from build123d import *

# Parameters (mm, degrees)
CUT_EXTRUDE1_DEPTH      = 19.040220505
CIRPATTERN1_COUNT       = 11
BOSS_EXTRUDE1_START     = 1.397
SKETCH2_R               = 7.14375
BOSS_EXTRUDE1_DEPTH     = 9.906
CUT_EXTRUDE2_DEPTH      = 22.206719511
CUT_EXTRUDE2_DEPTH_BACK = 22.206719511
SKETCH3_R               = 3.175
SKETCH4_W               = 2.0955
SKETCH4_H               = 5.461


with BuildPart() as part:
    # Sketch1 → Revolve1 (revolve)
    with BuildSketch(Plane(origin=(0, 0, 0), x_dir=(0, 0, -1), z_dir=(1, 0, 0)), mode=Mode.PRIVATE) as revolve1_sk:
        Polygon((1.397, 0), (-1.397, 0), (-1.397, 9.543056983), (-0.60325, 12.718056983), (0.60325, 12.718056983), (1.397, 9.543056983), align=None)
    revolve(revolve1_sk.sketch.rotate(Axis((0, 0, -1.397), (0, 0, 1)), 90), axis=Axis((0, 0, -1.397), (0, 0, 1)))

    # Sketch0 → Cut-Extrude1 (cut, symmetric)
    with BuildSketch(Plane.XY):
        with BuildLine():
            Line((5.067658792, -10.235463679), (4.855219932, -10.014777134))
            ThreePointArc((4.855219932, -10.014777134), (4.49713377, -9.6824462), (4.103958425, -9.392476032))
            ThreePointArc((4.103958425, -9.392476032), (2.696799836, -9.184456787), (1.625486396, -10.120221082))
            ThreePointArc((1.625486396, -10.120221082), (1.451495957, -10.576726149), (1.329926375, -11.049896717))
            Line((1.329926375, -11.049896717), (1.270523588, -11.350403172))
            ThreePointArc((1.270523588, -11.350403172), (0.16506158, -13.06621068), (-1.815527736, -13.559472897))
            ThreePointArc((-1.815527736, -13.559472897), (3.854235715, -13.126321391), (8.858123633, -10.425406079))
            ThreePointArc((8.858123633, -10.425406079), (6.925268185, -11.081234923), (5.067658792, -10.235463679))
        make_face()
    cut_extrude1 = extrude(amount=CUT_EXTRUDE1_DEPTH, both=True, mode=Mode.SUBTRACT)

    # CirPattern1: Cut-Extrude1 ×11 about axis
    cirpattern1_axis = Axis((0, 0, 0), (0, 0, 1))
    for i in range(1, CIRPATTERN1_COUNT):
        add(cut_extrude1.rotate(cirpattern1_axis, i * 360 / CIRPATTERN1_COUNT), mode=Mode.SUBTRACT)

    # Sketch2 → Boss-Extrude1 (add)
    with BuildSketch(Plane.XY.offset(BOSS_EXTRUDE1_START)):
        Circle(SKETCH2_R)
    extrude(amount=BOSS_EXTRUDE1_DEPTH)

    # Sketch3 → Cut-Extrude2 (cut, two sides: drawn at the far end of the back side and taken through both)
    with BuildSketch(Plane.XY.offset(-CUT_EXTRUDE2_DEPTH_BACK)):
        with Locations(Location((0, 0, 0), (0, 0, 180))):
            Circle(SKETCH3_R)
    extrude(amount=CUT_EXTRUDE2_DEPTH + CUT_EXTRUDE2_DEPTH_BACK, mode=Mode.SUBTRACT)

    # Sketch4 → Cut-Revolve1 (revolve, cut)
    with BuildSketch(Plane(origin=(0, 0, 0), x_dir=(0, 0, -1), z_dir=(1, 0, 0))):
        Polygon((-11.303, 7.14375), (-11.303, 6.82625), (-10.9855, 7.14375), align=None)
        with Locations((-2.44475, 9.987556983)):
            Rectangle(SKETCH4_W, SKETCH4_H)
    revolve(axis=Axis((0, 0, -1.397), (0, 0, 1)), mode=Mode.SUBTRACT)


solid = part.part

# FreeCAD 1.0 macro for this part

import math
import FreeCAD as App
import Part
import Sketcher
Q = App.Units.Quantity

doc = App.newDocument("Part")
body = doc.addObject("PartDesign::Body", "Body")

sketch1 = body.newObject("Sketcher::SketchObject", "Sketch")
sketch1.AttachmentSupport = (doc.getObject("YZ_Plane"), [""])
sketch1.MapMode = "FlatFace"
sketch1.addGeometry([
    Part.LineSegment(App.Vector(0, 1.4, 0), App.Vector(0, -1.4, 0)),
    Part.LineSegment(App.Vector(0, -1.4, 0), App.Vector(9.5, -1.4, 0)),
    Part.LineSegment(App.Vector(9.5, -1.4, 0), App.Vector(12.7, -0.6, 0)),
    Part.LineSegment(App.Vector(12.7, -0.6, 0), App.Vector(12.7, 0.6, 0)),
    Part.LineSegment(App.Vector(12.7, 0.6, 0), App.Vector(9.5, 1.4, 0)),
    Part.LineSegment(App.Vector(9.5, 1.4, 0), App.Vector(0, 1.4, 0)),
], False)
sketch1.addConstraint([
    Sketcher.Constraint("Coincident", 0, 2, 1, 1),
    Sketcher.Constraint("Coincident", 1, 2, 2, 1),
    Sketcher.Constraint("Coincident", 2, 2, 3, 1),
    Sketcher.Constraint("Coincident", 3, 2, 4, 1),
    Sketcher.Constraint("Coincident", 4, 2, 5, 1),
    Sketcher.Constraint("Coincident", 5, 2, 0, 1),
    Sketcher.Constraint("Vertical", 0),
    Sketcher.Constraint("Horizontal", 1),
    Sketcher.Constraint("Vertical", 3),
    Sketcher.Constraint("Horizontal", 5),
    Sketcher.Constraint("Symmetric", 0, 2, 5, 2, -1, 1),
    Sketcher.Constraint("Vertical", 1, 2, 4, 2),
    Sketcher.Constraint("Equal", 2, 4),
    Sketcher.Constraint("DistanceY", 0, 2, 0, 1, Q("0.11 in")),
    Sketcher.Constraint("DistanceY", 3, 1, 3, 2, Q("0.0475 in")),
    Sketcher.Constraint("DistanceX", 1, 2, 2, 2, Q("0.125 in")),
    Sketcher.Constraint("DistanceX", 1, 1, 1, 2, Q("9.543057 mm")),
])
revolution = body.newObject("PartDesign::Revolution", "Revolution")
revolution.Profile = sketch1
revolution.ReferenceAxis = (sketch1, ["V_Axis"])
revolution.Angle = 360

sketch2 = body.newObject("Sketcher::SketchObject", "Sketch001")
sketch2.AttachmentSupport = (doc.getObject("XY_Plane"), [""])
sketch2.MapMode = "FlatFace"
sketch2.addGeometry([
    Part.LineSegment(App.Vector(5.07, -10.24, 0), App.Vector(4.86, -10.01, 0)),
    Part.ArcOfCircle(Part.Circle(App.Vector(1.73, -13.02, 0), App.Vector(0, 0, 1), 4.34), math.radians(43.91), math.radians(56.82)),
    Part.ArcOfCircle(Part.Circle(App.Vector(3.17, -10.81, 0), App.Vector(0, 0, 1), 1.7), math.radians(57), math.radians(156)),
    Part.ArcOfCircle(Part.Circle(App.Vector(5.59, -11.89, 0), App.Vector(0, 0, 1), 4.34), math.radians(155.91), math.radians(168.82)),
    Part.LineSegment(App.Vector(1.33, -11.05, 0), App.Vector(1.27, -11.35, 0)),
    Part.ArcOfCircle(Part.Circle(App.Vector(-1.45, -10.81, 0), App.Vector(0, 0, 1), 2.77), math.radians(-98), math.radians(-11)),
    Part.ArcOfCircle(Part.Circle(App.Vector(0, 0, 0), App.Vector(0, 0, 1), 13.68), math.radians(-98), math.radians(-50)),
    Part.ArcOfCircle(Part.Circle(App.Vector(7.06, -8.31, 0), App.Vector(0, 0, 1), 2.77), math.radians(-136), math.radians(-50)),
], False)
sketch2.addConstraint([
    Sketcher.Constraint("Tangent", 0, 2, 1, 1),
    Sketcher.Constraint("Tangent", 1, 2, 2, 1),
    Sketcher.Constraint("Tangent", 2, 2, 3, 1),
    Sketcher.Constraint("Tangent", 3, 2, 4, 1),
    Sketcher.Constraint("Tangent", 4, 2, 5, 2),
    Sketcher.Constraint("Tangent", 5, 1, 6, 1),
    Sketcher.Constraint("Tangent", 6, 2, 7, 2),
    Sketcher.Constraint("Tangent", 7, 1, 0, 1),
    Sketcher.Constraint("Coincident", 6, 3, -1, 1),
    Sketcher.Constraint("Equal", 1, 3),
    Sketcher.Constraint("Equal", 5, 7),
    Sketcher.Constraint("Horizontal", 2, 3, 5, 3),
    Sketcher.Constraint("Equal", 0, 4),
    Sketcher.Constraint("DistanceX", -1, 1, 2, 3, Q("0.125 in")),
    Sketcher.Constraint("DistanceX", 5, 3, -1, 1, Q("0.057 in")),
    Sketcher.Constraint("Radius", 1, Q("4.338955 mm")),
    Sketcher.Constraint("Radius", 2, Q("1.697355 mm")),
    Sketcher.Constraint("Radius", 5, Q("2.770925 mm")),
    Sketcher.Constraint("Radius", 6, Q("13.680477 mm")),
    Sketcher.Constraint("DistanceY", 0, 2, 1, 2, Q("0.0245 in")),
    Sketcher.Constraint("DistanceX", 1, 3, 1, 2, Q("2.3747 mm")),
])
pocket1 = body.newObject("PartDesign::Pocket", "Pocket")
pocket1.Profile = sketch2
pocket1.Length = 38.080441
pocket1.Midplane = True
doc.recompute()

polarpattern = body.newObject("PartDesign::PolarPattern", "PolarPattern")
polarpattern.Originals = [pocket1]
polarpattern.Axis = (doc.getObject("Z_Axis"), [""])
polarpattern.Angle = 360
polarpattern.Occurrences = 11
body.Tip = polarpattern

sketch3 = body.newObject("Sketcher::SketchObject", "Sketch002")
sketch3.AttachmentSupport = (doc.getObject("XY_Plane"), [""])
sketch3.MapMode = "FlatFace"
sketch3.AttachmentOffset = App.Placement(App.Vector(0, 0, 0.055 * 25.4), App.Rotation())
sketch3.addGeometry(Part.Circle(App.Vector(0, 0, 0), App.Vector(0, 0, 1), 7), False)
sketch3.addConstraint([
    Sketcher.Constraint("Coincident", 0, 3, -1, 1),
    Sketcher.Constraint("Diameter", 0, Q("0.5625 in")),
])
pad1 = body.newObject("PartDesign::Pad", "Pad")
pad1.Profile = sketch3
pad1.Length = Q("0.39 in")

sketch4 = body.newObject("Sketcher::SketchObject", "Sketch003")
sketch4.AttachmentSupport = (doc.getObject("XY_Plane"), [""])
sketch4.MapMode = "FlatFace"
sketch4.addGeometry(Part.Circle(App.Vector(0, 0, 0), App.Vector(0, 0, 1), 3.2), False)
sketch4.addConstraint([
    Sketcher.Constraint("Coincident", 0, 3, -1, 1),
    Sketcher.Constraint("Diameter", 0, Q("0.25 in")),
])
pocket2 = body.newObject("PartDesign::Pocket", "Pocket001")
pocket2.Profile = sketch4
pocket2.Type = "ThroughAll"
pocket2.Midplane = True

sketch5 = body.newObject("Sketcher::SketchObject", "Sketch004")
sketch5.AttachmentSupport = (doc.getObject("YZ_Plane"), [""])
sketch5.MapMode = "FlatFace"
sketch5.addGeometry([
    Part.LineSegment(App.Vector(7.14, 11.3, 0), App.Vector(6.83, 11.3, 0)),
    Part.LineSegment(App.Vector(6.83, 11.3, 0), App.Vector(7.14, 10.99, 0)),
    Part.LineSegment(App.Vector(7.14, 10.99, 0), App.Vector(7.14, 11.3, 0)),
    Part.LineSegment(App.Vector(12.72, 3.49, 0), App.Vector(7.26, 3.49, 0)),
    Part.LineSegment(App.Vector(7.26, 3.49, 0), App.Vector(7.26, 1.4, 0)),
    Part.LineSegment(App.Vector(7.26, 1.4, 0), App.Vector(12.72, 1.4, 0)),
    Part.LineSegment(App.Vector(12.72, 1.4, 0), App.Vector(12.72, 3.49, 0)),
], False)
sketch5.addConstraint([
    Sketcher.Constraint("Coincident", 0, 2, 1, 1),
    Sketcher.Constraint("Coincident", 1, 2, 2, 1),
    Sketcher.Constraint("Coincident", 2, 2, 0, 1),
    Sketcher.Constraint("Coincident", 3, 2, 4, 1),
    Sketcher.Constraint("Coincident", 4, 2, 5, 1),
    Sketcher.Constraint("Coincident", 5, 2, 6, 1),
    Sketcher.Constraint("Coincident", 6, 2, 3, 1),
    Sketcher.Constraint("Horizontal", 0),
    Sketcher.Constraint("Vertical", 2),
    Sketcher.Constraint("Horizontal", 3),
    Sketcher.Constraint("Vertical", 4),
    Sketcher.Constraint("Horizontal", 5),
    Sketcher.Constraint("Vertical", 6),
    Sketcher.Constraint("Equal", 0, 2),
    Sketcher.Constraint("DistanceX", 3, 2, 3, 1, Q("0.215 in")),
    Sketcher.Constraint("DistanceY", 4, 2, 2, 2, Q("0.39 in")),
    Sketcher.Constraint("DistanceX", 0, 2, 0, 1, Q("0.0125 in")),
    Sketcher.Constraint("DistanceY", 4, 2, 4, 1, Q("0.0825 in")),
    Sketcher.Constraint("DistanceY", -1, 1, 0, 2, Q("0.445 in")),
    Sketcher.Constraint("DistanceX", -1, 1, 1, 2, Q("0.28125 in")),
    Sketcher.Constraint("DistanceX", -1, 1, 3, 2, Q("7.257057 mm")),
])
groove = body.newObject("PartDesign::Groove", "Groove")
groove.Profile = sketch5
groove.ReferenceAxis = (sketch5, ["V_Axis"])
groove.Angle = 360

doc.recompute()
